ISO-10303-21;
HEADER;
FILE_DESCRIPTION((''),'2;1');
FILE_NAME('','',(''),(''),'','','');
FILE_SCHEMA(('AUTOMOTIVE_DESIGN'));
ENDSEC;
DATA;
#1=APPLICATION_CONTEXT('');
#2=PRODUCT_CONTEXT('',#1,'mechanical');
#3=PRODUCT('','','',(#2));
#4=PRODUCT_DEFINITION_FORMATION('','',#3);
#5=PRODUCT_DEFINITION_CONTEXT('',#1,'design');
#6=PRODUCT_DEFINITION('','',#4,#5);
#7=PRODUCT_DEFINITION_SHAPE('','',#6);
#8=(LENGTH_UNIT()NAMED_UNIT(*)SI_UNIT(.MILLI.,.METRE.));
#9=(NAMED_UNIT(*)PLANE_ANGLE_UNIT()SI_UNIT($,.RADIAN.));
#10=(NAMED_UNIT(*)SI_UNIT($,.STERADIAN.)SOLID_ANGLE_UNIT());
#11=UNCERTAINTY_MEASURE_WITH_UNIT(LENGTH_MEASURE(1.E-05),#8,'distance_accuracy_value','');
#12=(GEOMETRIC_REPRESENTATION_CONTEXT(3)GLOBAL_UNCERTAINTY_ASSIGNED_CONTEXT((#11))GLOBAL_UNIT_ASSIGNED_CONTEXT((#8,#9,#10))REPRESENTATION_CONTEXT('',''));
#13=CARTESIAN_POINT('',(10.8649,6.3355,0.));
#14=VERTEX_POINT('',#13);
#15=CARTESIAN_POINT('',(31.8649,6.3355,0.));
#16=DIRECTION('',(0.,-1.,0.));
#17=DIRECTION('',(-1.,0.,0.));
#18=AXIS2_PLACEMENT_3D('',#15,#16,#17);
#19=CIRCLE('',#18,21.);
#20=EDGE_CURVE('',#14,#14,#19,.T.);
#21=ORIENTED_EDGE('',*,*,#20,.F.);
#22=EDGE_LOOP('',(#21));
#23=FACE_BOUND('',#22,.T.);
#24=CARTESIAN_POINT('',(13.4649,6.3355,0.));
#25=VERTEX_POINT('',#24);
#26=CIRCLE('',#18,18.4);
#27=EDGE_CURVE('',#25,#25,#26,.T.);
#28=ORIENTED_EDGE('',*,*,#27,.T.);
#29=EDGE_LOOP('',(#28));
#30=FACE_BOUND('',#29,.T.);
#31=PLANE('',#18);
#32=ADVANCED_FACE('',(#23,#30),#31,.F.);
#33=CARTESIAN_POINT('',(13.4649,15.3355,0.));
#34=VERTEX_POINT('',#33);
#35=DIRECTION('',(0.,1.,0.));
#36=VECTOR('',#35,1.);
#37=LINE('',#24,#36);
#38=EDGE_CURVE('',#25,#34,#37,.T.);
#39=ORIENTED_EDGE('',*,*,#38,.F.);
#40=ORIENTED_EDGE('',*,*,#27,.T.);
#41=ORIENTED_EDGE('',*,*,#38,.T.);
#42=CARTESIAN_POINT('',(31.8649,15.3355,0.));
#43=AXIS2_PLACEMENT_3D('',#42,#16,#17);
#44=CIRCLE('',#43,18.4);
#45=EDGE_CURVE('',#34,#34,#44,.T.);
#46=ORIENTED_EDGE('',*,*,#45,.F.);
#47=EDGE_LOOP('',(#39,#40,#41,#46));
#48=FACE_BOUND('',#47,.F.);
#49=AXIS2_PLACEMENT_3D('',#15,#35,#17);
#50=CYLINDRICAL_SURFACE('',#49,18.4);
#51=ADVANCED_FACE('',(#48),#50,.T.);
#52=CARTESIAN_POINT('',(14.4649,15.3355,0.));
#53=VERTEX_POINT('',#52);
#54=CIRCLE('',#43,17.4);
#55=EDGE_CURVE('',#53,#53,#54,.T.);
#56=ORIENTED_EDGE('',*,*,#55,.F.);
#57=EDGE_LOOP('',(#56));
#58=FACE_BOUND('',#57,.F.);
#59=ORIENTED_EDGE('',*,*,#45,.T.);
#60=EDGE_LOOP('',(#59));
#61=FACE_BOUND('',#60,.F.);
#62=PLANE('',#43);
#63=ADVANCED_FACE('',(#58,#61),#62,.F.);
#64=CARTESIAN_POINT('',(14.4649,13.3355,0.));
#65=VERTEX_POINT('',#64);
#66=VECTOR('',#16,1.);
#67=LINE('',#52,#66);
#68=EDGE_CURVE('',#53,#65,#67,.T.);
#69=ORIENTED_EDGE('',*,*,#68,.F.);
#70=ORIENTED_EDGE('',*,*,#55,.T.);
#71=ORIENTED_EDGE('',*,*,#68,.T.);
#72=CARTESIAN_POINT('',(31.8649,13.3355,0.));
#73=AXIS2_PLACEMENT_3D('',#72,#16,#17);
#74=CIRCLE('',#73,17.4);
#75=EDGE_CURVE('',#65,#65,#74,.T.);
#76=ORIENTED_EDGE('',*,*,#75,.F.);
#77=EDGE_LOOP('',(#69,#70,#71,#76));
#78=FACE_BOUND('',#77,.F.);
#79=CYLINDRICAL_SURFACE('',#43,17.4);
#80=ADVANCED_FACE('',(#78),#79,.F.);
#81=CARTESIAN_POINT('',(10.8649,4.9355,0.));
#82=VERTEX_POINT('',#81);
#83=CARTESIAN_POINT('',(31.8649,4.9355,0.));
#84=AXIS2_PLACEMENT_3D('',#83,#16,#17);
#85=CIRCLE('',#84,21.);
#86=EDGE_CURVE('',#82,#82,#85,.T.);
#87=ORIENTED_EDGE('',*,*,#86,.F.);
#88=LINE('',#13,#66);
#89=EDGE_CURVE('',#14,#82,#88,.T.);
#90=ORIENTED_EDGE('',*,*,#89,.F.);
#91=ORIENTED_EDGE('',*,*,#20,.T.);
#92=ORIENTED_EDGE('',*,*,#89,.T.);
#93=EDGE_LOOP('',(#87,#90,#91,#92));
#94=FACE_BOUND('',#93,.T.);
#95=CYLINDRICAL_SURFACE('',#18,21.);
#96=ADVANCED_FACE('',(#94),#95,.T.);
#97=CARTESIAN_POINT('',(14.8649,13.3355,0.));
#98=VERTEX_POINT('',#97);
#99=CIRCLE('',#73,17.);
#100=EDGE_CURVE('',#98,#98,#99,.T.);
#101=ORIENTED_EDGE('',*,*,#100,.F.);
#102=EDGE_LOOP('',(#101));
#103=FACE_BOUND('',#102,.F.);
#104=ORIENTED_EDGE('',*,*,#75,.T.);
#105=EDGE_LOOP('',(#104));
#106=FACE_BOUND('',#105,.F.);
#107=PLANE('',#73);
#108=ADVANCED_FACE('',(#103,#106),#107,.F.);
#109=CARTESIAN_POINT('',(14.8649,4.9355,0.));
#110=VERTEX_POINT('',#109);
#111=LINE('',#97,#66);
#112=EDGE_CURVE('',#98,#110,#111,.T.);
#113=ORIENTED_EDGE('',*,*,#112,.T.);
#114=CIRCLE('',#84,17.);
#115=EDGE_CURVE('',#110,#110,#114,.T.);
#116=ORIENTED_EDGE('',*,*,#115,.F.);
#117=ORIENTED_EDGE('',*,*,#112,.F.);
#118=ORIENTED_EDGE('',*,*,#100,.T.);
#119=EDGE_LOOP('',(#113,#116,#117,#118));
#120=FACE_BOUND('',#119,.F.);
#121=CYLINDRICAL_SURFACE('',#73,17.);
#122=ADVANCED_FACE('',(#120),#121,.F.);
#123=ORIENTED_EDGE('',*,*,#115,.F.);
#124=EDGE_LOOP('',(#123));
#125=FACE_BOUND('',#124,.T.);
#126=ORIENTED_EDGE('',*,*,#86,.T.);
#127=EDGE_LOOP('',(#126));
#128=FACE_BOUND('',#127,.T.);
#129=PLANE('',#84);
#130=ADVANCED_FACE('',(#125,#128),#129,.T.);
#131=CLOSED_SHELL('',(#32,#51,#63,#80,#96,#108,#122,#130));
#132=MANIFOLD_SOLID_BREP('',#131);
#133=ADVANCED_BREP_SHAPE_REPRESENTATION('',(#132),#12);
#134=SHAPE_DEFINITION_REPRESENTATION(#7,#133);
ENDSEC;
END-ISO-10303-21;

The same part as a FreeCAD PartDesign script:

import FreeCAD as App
import Part
import Sketcher


def add_polygon(sketch, points):
    """Adds a closed chain of lines whose ends are joined by coincident constraints."""
    first, n = sketch.GeometryCount, len(points)
    for a, b in zip(points, points[1:] + points[:1]):
        sketch.addGeometry(Part.LineSegment(App.Vector(*a, 0), App.Vector(*b, 0)), False)
    for i in range(n):
        sketch.addConstraint(Sketcher.Constraint("Coincident", first + i, 2, first + (i + 1) % n, 1))

doc = App.newDocument("Part")
body = doc.addObject("PartDesign::Body", "Body")

sketch1 = body.newObject("Sketcher::SketchObject", "Sketch")
sketch1.AttachmentSupport = (doc.getObject("XY_Plane"), [""])
sketch1.MapMode = "FlatFace"
add_polygon(sketch1, [(10.8649, 6.3355), (10.8649, 4.9355), (14.8649, 4.9355), (14.8649, 13.3355), (14.4649, 13.3355), (14.4649, 15.3355), (13.4649, 15.3355), (13.4649, 6.3355)])
sketch1.addGeometry(Part.LineSegment(App.Vector(31.8649, 15.3355, 0), App.Vector(31.8649, 4.9355, 0)), True)
sketch1.addConstraint([
    Sketcher.Constraint("Vertical", 0),
    Sketcher.Constraint("Horizontal", 1),
    Sketcher.Constraint("Vertical", 2),
    Sketcher.Constraint("Horizontal", 3),
    Sketcher.Constraint("Vertical", 4),
    Sketcher.Constraint("Horizontal", 5),
    Sketcher.Constraint("Vertical", 6),
    Sketcher.Constraint("Horizontal", 7),
    Sketcher.Constraint("Vertical", 8),
    Sketcher.Constraint("Horizontal", 5, 2, 8, 1),
    Sketcher.Constraint("Horizontal", 1, 2, 8, 2),
    Sketcher.Constraint("DistanceX", 5, 2, 5, 1, 1.0),
    Sketcher.Constraint("DistanceY", 4, 1, 4, 2, 2.0),
    Sketcher.Constraint("DistanceY", 6, 2, 6, 1, 9.0),
    Sketcher.Constraint("DistanceX", 3, 2, 3, 1, 0.4),
    Sketcher.Constraint("DistanceY", 0, 2, 0, 1, 1.4),
    Sketcher.Constraint("DistanceX", 5, 2, 8, 1, 18.4),
    Sketcher.Constraint("DistanceX", 1, 1, 1, 2, 4.0),
    Sketcher.Constraint("DistanceX", -1, 1, 0, 2, 10.865),
    Sketcher.Constraint("DistanceY", -1, 1, 0, 2, 4.9355),
])
revolution = body.newObject("PartDesign::Revolution", "Revolution")
revolution.Profile = sketch1
revolution.ReferenceAxis = (sketch1, ["Axis0"])
revolution.Angle = 360

doc.recompute()
